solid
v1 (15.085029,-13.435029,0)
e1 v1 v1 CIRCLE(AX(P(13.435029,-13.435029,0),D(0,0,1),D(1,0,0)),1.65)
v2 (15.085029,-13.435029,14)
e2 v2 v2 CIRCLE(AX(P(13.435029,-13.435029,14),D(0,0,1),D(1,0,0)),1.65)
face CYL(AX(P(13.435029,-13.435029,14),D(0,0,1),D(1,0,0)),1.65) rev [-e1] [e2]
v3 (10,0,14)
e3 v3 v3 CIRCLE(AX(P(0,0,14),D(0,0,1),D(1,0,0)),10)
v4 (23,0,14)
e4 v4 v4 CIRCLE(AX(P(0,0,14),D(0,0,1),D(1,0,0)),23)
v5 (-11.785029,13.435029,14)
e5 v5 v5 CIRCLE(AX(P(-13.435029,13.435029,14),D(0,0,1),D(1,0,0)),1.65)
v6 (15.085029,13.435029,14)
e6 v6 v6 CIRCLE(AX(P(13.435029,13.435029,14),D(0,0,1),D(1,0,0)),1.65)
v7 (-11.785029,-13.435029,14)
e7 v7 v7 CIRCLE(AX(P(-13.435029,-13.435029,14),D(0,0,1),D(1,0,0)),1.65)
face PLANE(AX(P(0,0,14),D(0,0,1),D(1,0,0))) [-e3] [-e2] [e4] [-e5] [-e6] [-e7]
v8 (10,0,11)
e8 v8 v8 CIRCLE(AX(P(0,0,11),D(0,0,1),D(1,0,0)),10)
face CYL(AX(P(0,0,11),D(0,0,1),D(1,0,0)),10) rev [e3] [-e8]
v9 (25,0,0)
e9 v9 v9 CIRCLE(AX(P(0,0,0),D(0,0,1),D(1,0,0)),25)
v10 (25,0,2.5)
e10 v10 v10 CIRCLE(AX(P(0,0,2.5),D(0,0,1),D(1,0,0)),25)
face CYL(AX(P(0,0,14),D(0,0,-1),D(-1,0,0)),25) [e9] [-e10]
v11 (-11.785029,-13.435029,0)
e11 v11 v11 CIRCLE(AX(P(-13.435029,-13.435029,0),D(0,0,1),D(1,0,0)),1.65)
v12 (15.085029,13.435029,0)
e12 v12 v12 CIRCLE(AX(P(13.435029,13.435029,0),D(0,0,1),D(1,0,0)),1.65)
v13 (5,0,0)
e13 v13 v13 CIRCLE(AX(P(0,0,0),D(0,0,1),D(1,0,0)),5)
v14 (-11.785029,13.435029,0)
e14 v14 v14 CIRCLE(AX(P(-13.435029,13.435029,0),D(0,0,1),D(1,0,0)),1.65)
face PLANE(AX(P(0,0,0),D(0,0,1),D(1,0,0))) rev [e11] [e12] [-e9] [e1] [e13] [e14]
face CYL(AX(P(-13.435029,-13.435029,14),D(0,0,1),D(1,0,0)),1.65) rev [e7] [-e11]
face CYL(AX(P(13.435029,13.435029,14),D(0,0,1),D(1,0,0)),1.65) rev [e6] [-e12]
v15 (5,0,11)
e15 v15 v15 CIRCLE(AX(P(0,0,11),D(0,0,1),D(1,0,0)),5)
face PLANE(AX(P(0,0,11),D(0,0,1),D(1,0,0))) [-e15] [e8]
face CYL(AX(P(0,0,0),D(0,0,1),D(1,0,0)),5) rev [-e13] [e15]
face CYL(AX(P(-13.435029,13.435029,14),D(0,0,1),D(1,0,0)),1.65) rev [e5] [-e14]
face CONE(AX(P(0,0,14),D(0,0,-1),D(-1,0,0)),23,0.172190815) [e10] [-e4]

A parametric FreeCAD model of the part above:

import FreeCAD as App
import Part
import Sketcher

V = App.Vector

doc = App.newDocument("Part")
body = doc.addObject("PartDesign::Body", "Body")

# Sketch on XY plane
sketch1 = body.newObject("Sketcher::SketchObject", "Sketch")
sketch1.AttachmentSupport = (doc.getObject("XY_Plane"), [""])
sketch1.MapMode = "FlatFace"
sketch1.addGeometry(Part.Circle(V(0, 0, 0), V(0, 0, 1), 25), False)
sketch1.addConstraint([
    Sketcher.Constraint("Coincident", 0, 3, -1, 1),
    Sketcher.Constraint("Diameter", 0, 50.0),
])
pad1 = body.newObject("PartDesign::Pad", "Pad")
pad1.Profile = sketch1
pad1.Length = 14

# Sketch on YZ plane
sketch2 = body.newObject("Sketcher::SketchObject", "Sketch001")
sketch2.AttachmentSupport = (doc.getObject("YZ_Plane"), [""])
sketch2.MapMode = "FlatFace"
sketch2.addGeometry([
    Part.LineSegment(V(25, 2.5, 0), V(25, 14, 0)),
    Part.LineSegment(V(25, 14, 0), V(23, 14, 0)),
    Part.LineSegment(V(23, 14, 0), V(25, 2.5, 0)),
], False)
sketch2.addConstraint([
    Sketcher.Constraint("Coincident", 0, 2, 1, 1),
    Sketcher.Constraint("Coincident", 1, 2, 2, 1),
    Sketcher.Constraint("Coincident", 2, 2, 0, 1),
    Sketcher.Constraint("Vertical", 0),
    Sketcher.Constraint("Horizontal", 1),
    Sketcher.Constraint("DistanceX", 1, 2, 1, 1, 2.0),
    Sketcher.Constraint("DistanceY", 0, 1, 0, 2, 11.5),
    Sketcher.Constraint("DistanceX", -1, 1, 0, 2, 25.0),
    Sketcher.Constraint("DistanceY", -1, 1, 0, 2, 14.0),
])
groove = body.newObject("PartDesign::Groove", "Groove")
groove.Profile = sketch2
groove.ReferenceAxis = (sketch2, ["V_Axis"])
groove.Angle = 360

# Sketch on XY plane
sketch3 = body.newObject("Sketcher::SketchObject", "Sketch002")
sketch3.AttachmentSupport = (doc.getObject("XY_Plane"), [""])
sketch3.MapMode = "FlatFace"
sketch3.AttachmentOffset = App.Placement(V(0, 0, 14), App.Rotation())
sketch3.addGeometry(Part.Circle(V(13.4, 13.4, 0), V(0, 0, 1), 1.5), False)
sketch3.addConstraint([
    Sketcher.Constraint("Diameter", 0, 3.0),
    Sketcher.Constraint("DistanceX", -1, 1, 0, 3, 13.435029),
    Sketcher.Constraint("DistanceY", -1, 1, 0, 3, 13.435029),
])
pocket1 = body.newObject("PartDesign::Pocket", "Pocket")
pocket1.Profile = sketch3
pocket1.Length = 2

# Sketch on XY plane
sketch4 = body.newObject("Sketcher::SketchObject", "Sketch003")
sketch4.AttachmentSupport = (doc.getObject("XY_Plane"), [""])
sketch4.MapMode = "FlatFace"
sketch4.AttachmentOffset = App.Placement(V(0, 0, 14), App.Rotation())
sketch4.addGeometry(Part.Circle(V(13.4, 13.4, 0), V(0, 0, 1), 1.6), False)
sketch4.addConstraint([
    Sketcher.Constraint("Diameter", 0, 3.3),
    Sketcher.Constraint("DistanceX", -1, 1, 0, 3, 13.435029),
    Sketcher.Constraint("DistanceY", -1, 1, 0, 3, 13.435029),
])
doc.recompute()
hole = body.newObject("PartDesign::Hole", "Hole")
hole.Profile = sketch4
hole.ThreadType = "None"
hole.Diameter = 3.3
hole.DepthType = "ThroughAll"
doc.recompute()

polarpattern = body.newObject("PartDesign::PolarPattern", "PolarPattern")
polarpattern.Originals = [hole]
polarpattern.Axis = (doc.getObject("Z_Axis"), [""])
polarpattern.Angle = 360
polarpattern.Occurrences = 4
body.Tip = polarpattern

# Sketch on XY plane
sketch5 = body.newObject("Sketcher::SketchObject", "Sketch004")
sketch5.AttachmentSupport = (doc.getObject("XY_Plane"), [""])
sketch5.MapMode = "FlatFace"
sketch5.AttachmentOffset = App.Placement(V(0, 0, 14), App.Rotation())
sketch5.addGeometry(Part.Circle(V(0, 0, 0), V(0, 0, 1), 10), False)
sketch5.addConstraint([
    Sketcher.Constraint("Coincident", 0, 3, -1, 1),
    Sketcher.Constraint("Diameter", 0, 20.0),
])
pocket2 = body.newObject("PartDesign::Pocket", "Pocket001")
pocket2.Profile = sketch5
pocket2.Length = 3

# Sketch on XY plane
sketch6 = body.newObject("Sketcher::SketchObject", "Sketch005")
sketch6.AttachmentSupport = (doc.getObject("XY_Plane"), [""])
sketch6.MapMode = "FlatFace"
sketch6.AttachmentOffset = App.Placement(V(0, 0, 11), App.Rotation())
sketch6.addGeometry(Part.Circle(V(0, 0, 0), V(0, 0, 1), 5), False)
sketch6.addConstraint([
    Sketcher.Constraint("Coincident", 0, 3, -1, 1),
    Sketcher.Constraint("Diameter", 0, 10.0),
])
pocket3 = body.newObject("PartDesign::Pocket", "Pocket002")
pocket3.Profile = sketch6
pocket3.Type = "ThroughAll"

doc.recompute()
